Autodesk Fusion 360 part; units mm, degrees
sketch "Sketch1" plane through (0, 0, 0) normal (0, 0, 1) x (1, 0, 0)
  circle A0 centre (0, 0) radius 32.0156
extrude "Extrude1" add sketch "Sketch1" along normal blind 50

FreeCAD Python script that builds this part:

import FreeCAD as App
import Part
import Sketcher
from FreeCAD import Vector

doc = App.newDocument("Part")
params = doc.addObject("Spreadsheet::Sheet", "Params")
for row, (alias, value) in enumerate([
    ("pad1_length", "50 mm"),
], start=1):
    params.set(f"A{row}", alias)
    params.set(f"B{row}", "=" + value)
    params.setAlias(f"B{row}", alias)

body = doc.addObject("PartDesign::Body", "Body")

# Sketch on XY plane
sketch1 = doc.addObject("Sketcher::SketchObject", "Sketch")
body.addObject(sketch1)
sketch1.AttachmentSupport = (doc.XY_Plane, [""])
sketch1.MapMode = "FlatFace"
sketch1.addGeometry(Part.Circle(Vector(0, 0, 0), Vector(0, 0, 1), 32), False)
sketch1.addConstraint(Sketcher.Constraint("Coincident", 0, 3, -1, 1))
sketch1.addConstraint(Sketcher.Constraint("Diameter", 0, 64.0312))
pad1 = doc.addObject("PartDesign::Pad", "Pad")
body.addObject(pad1)
pad1.Profile = sketch1
pad1.setExpression("Length", "Params.pad1_length")

doc.recompute()
